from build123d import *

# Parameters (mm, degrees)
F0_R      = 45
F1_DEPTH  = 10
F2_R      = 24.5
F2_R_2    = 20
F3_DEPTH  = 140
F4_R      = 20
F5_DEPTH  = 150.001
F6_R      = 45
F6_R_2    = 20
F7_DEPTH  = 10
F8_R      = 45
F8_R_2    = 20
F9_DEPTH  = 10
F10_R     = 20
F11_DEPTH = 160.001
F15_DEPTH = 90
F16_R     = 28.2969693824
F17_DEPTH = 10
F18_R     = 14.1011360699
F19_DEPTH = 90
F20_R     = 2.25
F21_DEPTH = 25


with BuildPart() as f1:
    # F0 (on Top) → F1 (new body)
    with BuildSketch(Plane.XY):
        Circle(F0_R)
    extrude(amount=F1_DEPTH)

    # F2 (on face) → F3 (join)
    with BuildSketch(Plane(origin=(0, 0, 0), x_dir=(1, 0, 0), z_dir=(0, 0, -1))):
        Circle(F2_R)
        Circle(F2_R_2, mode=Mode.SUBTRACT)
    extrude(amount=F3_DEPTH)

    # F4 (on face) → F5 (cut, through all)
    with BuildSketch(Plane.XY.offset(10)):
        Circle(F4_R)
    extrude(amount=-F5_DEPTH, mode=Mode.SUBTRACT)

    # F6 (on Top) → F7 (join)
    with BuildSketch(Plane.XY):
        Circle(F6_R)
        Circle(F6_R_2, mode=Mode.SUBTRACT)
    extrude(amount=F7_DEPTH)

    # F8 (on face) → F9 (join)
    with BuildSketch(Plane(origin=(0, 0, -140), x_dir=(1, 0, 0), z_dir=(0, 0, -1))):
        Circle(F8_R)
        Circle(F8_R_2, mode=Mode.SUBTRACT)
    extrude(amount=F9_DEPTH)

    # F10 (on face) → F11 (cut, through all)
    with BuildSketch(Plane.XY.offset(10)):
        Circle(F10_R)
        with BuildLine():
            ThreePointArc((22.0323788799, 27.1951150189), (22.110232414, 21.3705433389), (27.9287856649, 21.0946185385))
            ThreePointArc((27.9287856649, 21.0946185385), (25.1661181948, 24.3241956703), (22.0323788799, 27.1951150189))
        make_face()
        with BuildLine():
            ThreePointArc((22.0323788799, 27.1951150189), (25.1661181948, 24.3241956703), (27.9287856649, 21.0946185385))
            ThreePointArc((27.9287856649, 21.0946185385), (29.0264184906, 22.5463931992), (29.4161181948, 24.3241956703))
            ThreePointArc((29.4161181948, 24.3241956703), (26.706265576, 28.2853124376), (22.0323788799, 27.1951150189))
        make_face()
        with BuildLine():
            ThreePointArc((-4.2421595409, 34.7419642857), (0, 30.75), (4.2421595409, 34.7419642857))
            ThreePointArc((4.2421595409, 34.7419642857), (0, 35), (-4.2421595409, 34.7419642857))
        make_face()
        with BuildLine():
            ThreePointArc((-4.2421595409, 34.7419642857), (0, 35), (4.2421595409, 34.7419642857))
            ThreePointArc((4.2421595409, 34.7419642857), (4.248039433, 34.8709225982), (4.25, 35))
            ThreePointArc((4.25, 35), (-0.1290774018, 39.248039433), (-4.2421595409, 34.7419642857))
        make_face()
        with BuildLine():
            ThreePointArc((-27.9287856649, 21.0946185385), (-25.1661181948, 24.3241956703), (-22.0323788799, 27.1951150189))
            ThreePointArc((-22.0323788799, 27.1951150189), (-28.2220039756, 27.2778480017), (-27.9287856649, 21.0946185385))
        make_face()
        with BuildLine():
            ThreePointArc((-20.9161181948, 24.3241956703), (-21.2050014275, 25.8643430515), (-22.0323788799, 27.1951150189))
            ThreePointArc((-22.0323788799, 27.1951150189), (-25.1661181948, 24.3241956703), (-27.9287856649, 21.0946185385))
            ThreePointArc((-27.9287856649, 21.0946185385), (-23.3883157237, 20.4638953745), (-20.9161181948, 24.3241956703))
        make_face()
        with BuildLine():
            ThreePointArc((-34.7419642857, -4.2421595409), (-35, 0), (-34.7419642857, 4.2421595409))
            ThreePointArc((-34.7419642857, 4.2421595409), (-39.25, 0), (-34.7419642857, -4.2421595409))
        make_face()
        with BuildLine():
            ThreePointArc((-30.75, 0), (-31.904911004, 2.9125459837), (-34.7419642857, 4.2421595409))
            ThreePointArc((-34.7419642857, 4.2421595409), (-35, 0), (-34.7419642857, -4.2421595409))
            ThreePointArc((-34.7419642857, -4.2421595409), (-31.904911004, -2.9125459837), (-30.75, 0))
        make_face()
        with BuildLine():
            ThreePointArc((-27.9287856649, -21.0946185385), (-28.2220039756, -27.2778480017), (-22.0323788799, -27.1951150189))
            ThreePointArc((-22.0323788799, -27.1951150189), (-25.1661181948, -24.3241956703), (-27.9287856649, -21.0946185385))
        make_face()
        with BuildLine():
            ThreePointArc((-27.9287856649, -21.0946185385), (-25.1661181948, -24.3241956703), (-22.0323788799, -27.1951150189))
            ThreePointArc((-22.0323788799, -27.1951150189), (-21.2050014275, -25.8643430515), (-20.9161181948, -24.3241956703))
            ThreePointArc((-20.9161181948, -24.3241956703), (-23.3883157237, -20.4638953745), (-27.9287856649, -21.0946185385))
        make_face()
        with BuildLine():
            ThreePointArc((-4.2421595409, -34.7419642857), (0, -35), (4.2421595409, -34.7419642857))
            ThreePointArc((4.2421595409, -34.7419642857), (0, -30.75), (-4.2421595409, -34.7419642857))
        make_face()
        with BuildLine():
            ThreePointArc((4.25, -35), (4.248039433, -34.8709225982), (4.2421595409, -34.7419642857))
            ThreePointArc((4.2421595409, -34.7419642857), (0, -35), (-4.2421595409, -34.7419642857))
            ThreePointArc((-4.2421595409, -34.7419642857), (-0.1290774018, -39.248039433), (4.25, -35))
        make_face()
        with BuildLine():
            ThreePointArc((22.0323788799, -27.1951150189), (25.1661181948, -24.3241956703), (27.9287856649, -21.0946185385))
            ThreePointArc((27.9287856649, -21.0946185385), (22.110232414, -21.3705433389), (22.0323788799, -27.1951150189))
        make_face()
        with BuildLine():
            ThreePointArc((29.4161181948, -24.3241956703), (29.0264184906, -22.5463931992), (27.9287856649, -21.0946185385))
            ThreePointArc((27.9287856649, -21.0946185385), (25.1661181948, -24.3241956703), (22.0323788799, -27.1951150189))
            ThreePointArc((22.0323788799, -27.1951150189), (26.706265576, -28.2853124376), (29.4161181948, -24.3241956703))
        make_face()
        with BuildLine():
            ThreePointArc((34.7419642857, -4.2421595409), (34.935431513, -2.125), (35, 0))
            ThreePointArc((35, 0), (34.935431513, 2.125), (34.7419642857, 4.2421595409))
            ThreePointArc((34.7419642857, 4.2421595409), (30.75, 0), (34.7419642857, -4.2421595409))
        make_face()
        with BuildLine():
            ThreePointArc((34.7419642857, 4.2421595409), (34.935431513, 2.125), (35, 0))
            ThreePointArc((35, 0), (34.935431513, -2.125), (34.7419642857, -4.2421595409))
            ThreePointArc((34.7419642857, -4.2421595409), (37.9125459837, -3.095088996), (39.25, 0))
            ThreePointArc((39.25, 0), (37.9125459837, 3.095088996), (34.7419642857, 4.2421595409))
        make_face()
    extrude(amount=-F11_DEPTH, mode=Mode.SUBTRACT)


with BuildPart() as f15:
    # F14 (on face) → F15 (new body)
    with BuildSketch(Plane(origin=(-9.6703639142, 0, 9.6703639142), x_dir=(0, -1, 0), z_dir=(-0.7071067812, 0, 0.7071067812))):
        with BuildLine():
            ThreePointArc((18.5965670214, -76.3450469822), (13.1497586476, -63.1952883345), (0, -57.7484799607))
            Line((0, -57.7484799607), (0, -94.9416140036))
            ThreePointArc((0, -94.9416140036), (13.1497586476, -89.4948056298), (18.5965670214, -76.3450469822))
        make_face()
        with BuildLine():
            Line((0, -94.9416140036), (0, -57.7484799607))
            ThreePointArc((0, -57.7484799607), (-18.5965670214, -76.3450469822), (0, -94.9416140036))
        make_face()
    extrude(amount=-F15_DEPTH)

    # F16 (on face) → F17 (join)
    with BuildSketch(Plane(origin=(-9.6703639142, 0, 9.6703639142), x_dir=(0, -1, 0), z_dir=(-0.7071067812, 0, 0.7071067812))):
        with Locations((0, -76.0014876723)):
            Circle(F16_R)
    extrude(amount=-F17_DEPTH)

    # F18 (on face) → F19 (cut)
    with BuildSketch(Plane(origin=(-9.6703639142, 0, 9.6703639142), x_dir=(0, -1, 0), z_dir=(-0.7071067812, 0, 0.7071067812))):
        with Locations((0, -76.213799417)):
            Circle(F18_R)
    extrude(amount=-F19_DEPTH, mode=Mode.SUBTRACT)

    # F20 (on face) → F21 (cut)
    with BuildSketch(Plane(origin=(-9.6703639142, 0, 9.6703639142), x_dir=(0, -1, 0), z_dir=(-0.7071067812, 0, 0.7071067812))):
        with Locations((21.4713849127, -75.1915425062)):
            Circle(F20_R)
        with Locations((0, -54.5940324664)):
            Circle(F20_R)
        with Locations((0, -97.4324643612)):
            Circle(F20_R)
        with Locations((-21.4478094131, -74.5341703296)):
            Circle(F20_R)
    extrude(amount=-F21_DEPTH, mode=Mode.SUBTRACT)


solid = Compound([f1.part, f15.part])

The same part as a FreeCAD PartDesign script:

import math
import FreeCAD as App
import Part
import Sketcher
Q = App.Units.Quantity

doc = App.newDocument("Part")
params = doc.addObject("Spreadsheet::Sheet", "Params")
for row, (alias, value) in enumerate([
    ("sketch1_diameter", "90 mm"),
    ("pad1_length", "10 mm"),
    ("sketch2_diameter", "49 mm"),
    ("sketch2_diameter2", "40 mm"),
    ("pad2_length", "140 mm"),
    ("sketch3_diameter", "40 mm"),
    ("sketch4_diameter", "90 mm"),
    ("sketch4_diameter2", "40 mm"),
    ("pad3_length", "10 mm"),
    ("sketch5_diameter", "90 mm"),
    ("sketch5_diameter2", "40 mm"),
    ("pad4_length", "10 mm"),
    ("sketch6_diameter", "40 mm"),
    ("sketch6_diameter2", "8.5 mm"),
    ("pad5_length", "90 mm"),
    ("pad6_length", "10 mm"),
    ("pocket3_length", "90 mm"),
    ("sketch10_diameter", "4.5 mm"),
    ("pocket4_length", "25 mm"),
], start=1):
    params.set(f"A{row}", alias)
    params.set(f"B{row}", "=" + value)
    params.setAlias(f"B{row}", alias)

body = doc.addObject("PartDesign::Body", "Body")

sketch1 = doc.addObject("Sketcher::SketchObject", "Sketch")
body.addObject(sketch1)
sketch1.AttachmentSupport = (doc.XY_Plane, [""])
sketch1.MapMode = "FlatFace"
sketch1.addGeometry(Part.Circle(App.Vector(0, 0, 0), App.Vector(0, 0, 1), 45), False)
sketch1.addConstraint([
    Sketcher.Constraint("Coincident", 0, 3, -1, 1),
    Sketcher.Constraint("Diameter", 0, Q("90 mm")),
])
sketch1.setExpression("Constraints[1]", "Params.sketch1_diameter")
pad1 = doc.addObject("PartDesign::Pad", "Pad")
body.addObject(pad1)
pad1.Profile = sketch1
pad1.setExpression("Length", "Params.pad1_length")

sketch2 = doc.addObject("Sketcher::SketchObject", "Sketch001")
body.addObject(sketch2)
sketch2.AttachmentSupport = (doc.XY_Plane, [""])
sketch2.MapMode = "FlatFace"
sketch2.addGeometry([
    Part.Circle(App.Vector(0, 0, 0), App.Vector(0, 0, 1), 24),
    Part.Circle(App.Vector(0, 0, 0), App.Vector(0, 0, 1), 20),
], False)
sketch2.addConstraint([
    Sketcher.Constraint("Coincident", 0, 3, -1, 1),
    Sketcher.Constraint("Coincident", 1, 3, -1, 1),
    Sketcher.Constraint("Diameter", 0, Q("49 mm")),
    Sketcher.Constraint("Diameter", 1, Q("40 mm")),
])
sketch2.setExpression("Constraints[2]", "Params.sketch2_diameter")
sketch2.setExpression("Constraints[3]", "Params.sketch2_diameter2")
pad2 = doc.addObject("PartDesign::Pad", "Pad001")
body.addObject(pad2)
pad2.Profile = sketch2
pad2.setExpression("Length", "Params.pad2_length")
pad2.Reversed = True

sketch3 = doc.addObject("Sketcher::SketchObject", "Sketch002")
body.addObject(sketch3)
sketch3.AttachmentSupport = (doc.XY_Plane, [""])
sketch3.MapMode = "FlatFace"
sketch3.AttachmentOffset = App.Placement(App.Vector(0, 0, 10), App.Rotation())
sketch3.addGeometry(Part.Circle(App.Vector(0, 0, 0), App.Vector(0, 0, 1), 20), False)
sketch3.addConstraint([
    Sketcher.Constraint("Coincident", 0, 3, -1, 1),
    Sketcher.Constraint("Diameter", 0, Q("40 mm")),
])
sketch3.setExpression("Constraints[1]", "Params.sketch3_diameter")
pocket1 = doc.addObject("PartDesign::Pocket", "Pocket")
body.addObject(pocket1)
pocket1.Profile = sketch3
pocket1.Type = "ThroughAll"

sketch4 = doc.addObject("Sketcher::SketchObject", "Sketch003")
body.addObject(sketch4)
sketch4.AttachmentSupport = (doc.XY_Plane, [""])
sketch4.MapMode = "FlatFace"
sketch4.addGeometry([
    Part.Circle(App.Vector(0, 0, 0), App.Vector(0, 0, 1), 45),
    Part.Circle(App.Vector(0, 0, 0), App.Vector(0, 0, 1), 20),
], False)
sketch4.addConstraint([
    Sketcher.Constraint("Coincident", 0, 3, -1, 1),
    Sketcher.Constraint("Coincident", 1, 3, -1, 1),
    Sketcher.Constraint("Diameter", 0, Q("90 mm")),
    Sketcher.Constraint("Diameter", 1, Q("40 mm")),
])
sketch4.setExpression("Constraints[2]", "Params.sketch4_diameter")
sketch4.setExpression("Constraints[3]", "Params.sketch4_diameter2")
pad3 = doc.addObject("PartDesign::Pad", "Pad002")
body.addObject(pad3)
pad3.Profile = sketch4
pad3.setExpression("Length", "Params.pad3_length")

sketch5 = doc.addObject("Sketcher::SketchObject", "Sketch004")
body.addObject(sketch5)
sketch5.AttachmentSupport = (doc.XY_Plane, [""])
sketch5.MapMode = "FlatFace"
sketch5.AttachmentOffset = App.Placement(App.Vector(0, 0, -140), App.Rotation())
sketch5.addGeometry([
    Part.Circle(App.Vector(0, 0, 0), App.Vector(0, 0, 1), 45),
    Part.Circle(App.Vector(0, 0, 0), App.Vector(0, 0, 1), 20),
], False)
sketch5.addConstraint([
    Sketcher.Constraint("Coincident", 0, 3, -1, 1),
    Sketcher.Constraint("Coincident", 1, 3, -1, 1),
    Sketcher.Constraint("Diameter", 0, Q("90 mm")),
    Sketcher.Constraint("Diameter", 1, Q("40 mm")),
])
sketch5.setExpression("Constraints[2]", "Params.sketch5_diameter")
sketch5.setExpression("Constraints[3]", "Params.sketch5_diameter2")
pad4 = doc.addObject("PartDesign::Pad", "Pad003")
body.addObject(pad4)
pad4.Profile = sketch5
pad4.setExpression("Length", "Params.pad4_length")
pad4.Reversed = True

sketch6 = doc.addObject("Sketcher::SketchObject", "Sketch005")
body.addObject(sketch6)
sketch6.AttachmentSupport = (doc.XY_Plane, [""])
sketch6.MapMode = "FlatFace"
sketch6.AttachmentOffset = App.Placement(App.Vector(0, 0, 10), App.Rotation())
sketch6.addGeometry([
    Part.Circle(App.Vector(0, 0, 0), App.Vector(0, 0, 1), 20),
    Part.ArcOfCircle(Part.Circle(App.Vector(25.17, 24.32, 0), App.Vector(0, 0, 1), 4.25), math.radians(138), math.radians(311)),
    Part.ArcOfCircle(Part.Circle(App.Vector(25.17, 24.32, 0), App.Vector(0, 0, 1), 4.25), math.radians(-49), math.radians(0)),
    Part.ArcOfCircle(Part.Circle(App.Vector(25.17, 24.32, 0), App.Vector(0, 0, 1), 4.25), math.radians(0), math.radians(138)),
    Part.ArcOfCircle(Part.Circle(App.Vector(0, 35, 0), App.Vector(0, 0, 1), 4.25), math.radians(-177), math.radians(-3)),
    Part.ArcOfCircle(Part.Circle(App.Vector(0, 35, 0), App.Vector(0, 0, 1), 4.25), math.radians(-3.48), math.radians(0)),
    Part.ArcOfCircle(Part.Circle(App.Vector(0, 35, 0), App.Vector(0, 0, 1), 4.25), math.radians(0), math.radians(183)),
    Part.ArcOfCircle(Part.Circle(App.Vector(-25.17, 24.32, 0), App.Vector(0, 0, 1), 4.25), math.radians(42), math.radians(229)),
    Part.ArcOfCircle(Part.Circle(App.Vector(-25.17, 24.32, 0), App.Vector(0, 0, 1), 4.25), math.radians(-131), math.radians(0)),
    Part.ArcOfCircle(Part.Circle(App.Vector(-25.17, 24.32, 0), App.Vector(0, 0, 1), 4.25), math.radians(0), math.radians(42)),
    Part.Circle(App.Vector(-35, 0, 0), App.Vector(0, 0, 1), 4.25),
    Part.ArcOfCircle(Part.Circle(App.Vector(-25.17, -24.32, 0), App.Vector(0, 0, 1), 4.25), math.radians(131), math.radians(318)),
    Part.ArcOfCircle(Part.Circle(App.Vector(-25.17, -24.32, 0), App.Vector(0, 0, 1), 4.25), math.radians(-42), math.radians(0)),
    Part.ArcOfCircle(Part.Circle(App.Vector(-25.17, -24.32, 0), App.Vector(0, 0, 1), 4.25), math.radians(0), math.radians(131)),
    Part.ArcOfCircle(Part.Circle(App.Vector(0, -35, 0), App.Vector(0, 0, 1), 4.25), math.radians(3), math.radians(177)),
    Part.ArcOfCircle(Part.Circle(App.Vector(0, -35, 0), App.Vector(0, 0, 1), 4.25), math.radians(177), math.radians(360)),
    Part.ArcOfCircle(Part.Circle(App.Vector(0, -35, 0), App.Vector(0, 0, 1), 4.25), math.radians(0), math.radians(3.48)),
    Part.ArcOfCircle(Part.Circle(App.Vector(25.17, -24.32, 0), App.Vector(0, 0, 1), 4.25), math.radians(49), math.radians(222)),
    Part.ArcOfCircle(Part.Circle(App.Vector(25.17, -24.32, 0), App.Vector(0, 0, 1), 4.25), math.radians(-138), math.radians(0)),
    Part.ArcOfCircle(Part.Circle(App.Vector(25.17, -24.32, 0), App.Vector(0, 0, 1), 4.25), math.radians(0), math.radians(49)),
    Part.ArcOfCircle(Part.Circle(App.Vector(35, 0, 0), App.Vector(0, 0, 1), 4.25), math.radians(93), math.radians(267)),
    Part.ArcOfCircle(Part.Circle(App.Vector(35, 0, 0), App.Vector(0, 0, 1), 4.25), math.radians(-93), math.radians(0)),
    Part.ArcOfCircle(Part.Circle(App.Vector(35, 0, 0), App.Vector(0, 0, 1), 4.25), math.radians(0), math.radians(93)),
], False)
sketch6.addConstraint([
    Sketcher.Constraint("Tangent", 1, 2, 2, 1),
    Sketcher.Constraint("Tangent", 2, 2, 3, 1),
    Sketcher.Constraint("Tangent", 3, 2, 1, 1),
    Sketcher.Constraint("Tangent", 4, 2, 5, 1),
    Sketcher.Constraint("Tangent", 5, 2, 6, 1),
    Sketcher.Constraint("Tangent", 6, 2, 4, 1),
    Sketcher.Constraint("Tangent", 7, 2, 8, 1),
    Sketcher.Constraint("Tangent", 8, 2, 9, 1),
    Sketcher.Constraint("Tangent", 9, 2, 7, 1),
    Sketcher.Constraint("Tangent", 11, 2, 12, 1),
    Sketcher.Constraint("Tangent", 12, 2, 13, 1),
    Sketcher.Constraint("Tangent", 13, 2, 11, 1),
    Sketcher.Constraint("Tangent", 14, 2, 15, 1),
    Sketcher.Constraint("Tangent", 15, 2, 16, 1),
    Sketcher.Constraint("Tangent", 16, 2, 14, 1),
    Sketcher.Constraint("Tangent", 17, 2, 18, 1),
    Sketcher.Constraint("Tangent", 18, 2, 19, 1),
    Sketcher.Constraint("Tangent", 19, 2, 17, 1),
    Sketcher.Constraint("Tangent", 20, 2, 21, 1),
    Sketcher.Constraint("Tangent", 21, 2, 22, 1),
    Sketcher.Constraint("Tangent", 22, 2, 20, 1),
    Sketcher.Constraint("Coincident", 0, 3, -1, 1),
    Sketcher.Constraint("Equal", 3, 4),
    Sketcher.Constraint("Equal", 6, 7),
    Sketcher.Constraint("Equal", 9, 10),
    Sketcher.Constraint("Equal", 10, 11),
    Sketcher.Constraint("Equal", 13, 14),
    Sketcher.Constraint("Equal", 16, 17),
    Sketcher.Constraint("Equal", 19, 20),
    Sketcher.Constraint("Symmetric", 1, 3, 11, 3, -1, 1),
    Sketcher.Constraint("Symmetric", 4, 3, 14, 3, -1, 1),
    Sketcher.Constraint("Symmetric", 7, 3, 17, 3, -1, 1),
    Sketcher.Constraint("Symmetric", 10, 3, 20, 3, -1, 1),
    Sketcher.Constraint("Symmetric", 1, 3, 7, 3, -2),
    Sketcher.Constraint("Symmetric", 4, 2, 6, 2, -2),
    Sketcher.Constraint("Symmetric", 20, 2, 22, 2, -1),
    Sketcher.Constraint("PointOnObject", 21, 2, -1),
    Sketcher.Constraint("Horizontal", 9, 3, 2, 2),
    Sketcher.Constraint("Horizontal", 6, 3, 5, 2),
    Sketcher.Constraint("Horizontal", 1, 2, 7, 2),
    Sketcher.Constraint("Horizontal", 2, 2, 8, 2),
    Sketcher.Constraint("Horizontal", 3, 2, 9, 2),
    Sketcher.Constraint("Horizontal", 19, 3, 12, 2),
    Sketcher.Constraint("Horizontal", 16, 3, 15, 2),
    Sketcher.Constraint("Horizontal", 14, 2, 16, 2),
    Sketcher.Constraint("Horizontal", 11, 2, 17, 2),
    Sketcher.Constraint("Horizontal", 12, 2, 18, 2),
    Sketcher.Constraint("Horizontal", 13, 2, 19, 2),
    Sketcher.Constraint("Vertical", 9, 2, 11, 2),
    Sketcher.Constraint("Vertical", 7, 2, 13, 2),
    Sketcher.Constraint("Vertical", 6, 2, 14, 2),
    Sketcher.Constraint("Diameter", 0, Q("40 mm")),
    Sketcher.Constraint("Diameter", 10, Q("8.5 mm")),
    Sketcher.Constraint("DistanceY", -1, 1, 4, 3, Q("35 mm")),
    Sketcher.Constraint("DistanceX", 10, 3, -1, 1, Q("35 mm")),
    Sketcher.Constraint("DistanceX", -1, 1, 1, 3, Q("25.166118 mm")),
    Sketcher.Constraint("DistanceY", -1, 1, 1, 2, Q("21.094619 mm")),
    Sketcher.Constraint("DistanceX", -1, 1, 3, 2, Q("22.032379 mm")),
    Sketcher.Constraint("DistanceX", -1, 1, 4, 2, Q("4.24216 mm")),
    Sketcher.Constraint("DistanceY", 20, 2, -1, 1, Q("4.24216 mm")),
    Sketcher.Constraint("DistanceY", 11, 3, 7, 3, Q("48.648391 mm")),
])
sketch6.setExpression("Constraints[51]", "Params.sketch6_diameter")
sketch6.setExpression("Constraints[52]", "Params.sketch6_diameter2")
pocket2 = doc.addObject("PartDesign::Pocket", "Pocket001")
body.addObject(pocket2)
pocket2.Profile = sketch6
pocket2.Type = "ThroughAll"
body2 = doc.addObject("PartDesign::Body", "Body001")

sketch7 = doc.addObject("Sketcher::SketchObject", "Sketch006")
body2.addObject(sketch7)
sketch7.Placement = App.Placement(App.Vector(-9.670364, 0, 9.670364), App.Rotation(App.Vector(0, -1, 0), App.Vector(0.707106781, 0, 0.707106781), App.Vector(-0.707106781, 0, 0.707106781), "ZXY"))
sketch7.addGeometry([
    Part.ArcOfCircle(Part.Circle(App.Vector(0, -76, 0), App.Vector(0, 0, 1), 19), math.radians(0), math.radians(90)),
    Part.ArcOfCircle(Part.Circle(App.Vector(0, -76, 0), App.Vector(0, 0, 1), 19), math.radians(90), math.radians(270)),
    Part.ArcOfCircle(Part.Circle(App.Vector(0, -76, 0), App.Vector(0, 0, 1), 19), math.radians(-90), math.radians(0)),
], False)
sketch7.addConstraint([
    Sketcher.Constraint("Tangent", 0, 2, 1, 1),
    Sketcher.Constraint("Tangent", 1, 2, 2, 1),
    Sketcher.Constraint("Tangent", 2, 2, 0, 1),
    Sketcher.Constraint("PointOnObject", 0, 3, -2),
    Sketcher.Constraint("PointOnObject", 0, 2, -2),
    Sketcher.Constraint("PointOnObject", 1, 2, -2),
    Sketcher.Constraint("Horizontal", 1, 3, 2, 2),
    Sketcher.Constraint("Radius", 0, Q("18.596567 mm")),
    Sketcher.Constraint("DistanceY", 0, 2, -1, 1, Q("57.74848 mm")),
])
pad5 = doc.addObject("PartDesign::Pad", "Pad004")
body2.addObject(pad5)
pad5.Profile = sketch7
pad5.setExpression("Length", "Params.pad5_length")
pad5.Reversed = True

sketch8 = doc.addObject("Sketcher::SketchObject", "Sketch007")
body2.addObject(sketch8)
sketch8.Placement = App.Placement(App.Vector(-9.670364, 0, 9.670364), App.Rotation(App.Vector(0, -1, 0), App.Vector(0.707106781, 0, 0.707106781), App.Vector(-0.707106781, 0, 0.707106781), "ZXY"))
sketch8.addGeometry(Part.Circle(App.Vector(0, -76, 0), App.Vector(0, 0, 1), 28), False)
sketch8.addConstraint([
    Sketcher.Constraint("PointOnObject", 0, 3, -2),
    Sketcher.Constraint("Diameter", 0, Q("56.593939 mm")),
    Sketcher.Constraint("DistanceY", 0, 3, -1, 1, Q("76.001488 mm")),
])
pad6 = doc.addObject("PartDesign::Pad", "Pad005")
body2.addObject(pad6)
pad6.Profile = sketch8
pad6.setExpression("Length", "Params.pad6_length")
pad6.Reversed = True

sketch9 = doc.addObject("Sketcher::SketchObject", "Sketch008")
body2.addObject(sketch9)
sketch9.Placement = App.Placement(App.Vector(-9.670364, 0, 9.670364), App.Rotation(App.Vector(0, -1, 0), App.Vector(0.707106781, 0, 0.707106781), App.Vector(-0.707106781, 0, 0.707106781), "ZXY"))
sketch9.addGeometry(Part.Circle(App.Vector(0, -76, 0), App.Vector(0, 0, 1), 14), False)
sketch9.addConstraint([
    Sketcher.Constraint("PointOnObject", 0, 3, -2),
    Sketcher.Constraint("Diameter", 0, Q("28.202272 mm")),
    Sketcher.Constraint("DistanceY", 0, 3, -1, 1, Q("76.213799 mm")),
])
pocket3 = doc.addObject("PartDesign::Pocket", "Pocket002")
body2.addObject(pocket3)
pocket3.Profile = sketch9
pocket3.setExpression("Length", "Params.pocket3_length")

sketch10 = doc.addObject("Sketcher::SketchObject", "Sketch009")
body2.addObject(sketch10)
sketch10.Placement = App.Placement(App.Vector(-9.670364, 0, 9.670364), App.Rotation(App.Vector(0, -1, 0), App.Vector(0.707106781, 0, 0.707106781), App.Vector(-0.707106781, 0, 0.707106781), "ZXY"))
sketch10.addGeometry([
    Part.Circle(App.Vector(21.5, -75.2, 0), App.Vector(0, 0, 1), 2.2),
    Part.Circle(App.Vector(0, -54.6, 0), App.Vector(0, 0, 1), 2.2),
    Part.Circle(App.Vector(0, -97.4, 0), App.Vector(0, 0, 1), 2.2),
    Part.Circle(App.Vector(-21.4, -74.5, 0), App.Vector(0, 0, 1), 2.2),
], False)
sketch10.addConstraint([
    Sketcher.Constraint("Equal", 0, 1),
    Sketcher.Constraint("Equal", 1, 2),
    Sketcher.Constraint("Equal", 2, 3),
    Sketcher.Constraint("PointOnObject", 1, 3, -2),
    Sketcher.Constraint("PointOnObject", 2, 3, -2),
    Sketcher.Constraint("Diameter", 0, Q("4.5 mm")),
    Sketcher.Constraint("DistanceX", 3, 3, -1, 1, Q("21.447809 mm")),
    Sketcher.Constraint("DistanceY", 3, 3, -1, 1, Q("74.53417 mm")),
    Sketcher.Constraint("DistanceY", 0, 3, 1, 3, Q("20.59751 mm")),
    Sketcher.Constraint("DistanceY", 2, 3, 0, 3, Q("22.240922 mm")),
    Sketcher.Constraint("DistanceX", -1, 1, 0, 3, Q("21.471385 mm")),
    Sketcher.Constraint("DistanceY", 0, 3, -1, 1, Q("75.191542 mm")),
])
sketch10.setExpression("Constraints[5]", "Params.sketch10_diameter")
pocket4 = doc.addObject("PartDesign::Pocket", "Pocket003")
body2.addObject(pocket4)
pocket4.Profile = sketch10
pocket4.setExpression("Length", "Params.pocket4_length")

doc.recompute()
